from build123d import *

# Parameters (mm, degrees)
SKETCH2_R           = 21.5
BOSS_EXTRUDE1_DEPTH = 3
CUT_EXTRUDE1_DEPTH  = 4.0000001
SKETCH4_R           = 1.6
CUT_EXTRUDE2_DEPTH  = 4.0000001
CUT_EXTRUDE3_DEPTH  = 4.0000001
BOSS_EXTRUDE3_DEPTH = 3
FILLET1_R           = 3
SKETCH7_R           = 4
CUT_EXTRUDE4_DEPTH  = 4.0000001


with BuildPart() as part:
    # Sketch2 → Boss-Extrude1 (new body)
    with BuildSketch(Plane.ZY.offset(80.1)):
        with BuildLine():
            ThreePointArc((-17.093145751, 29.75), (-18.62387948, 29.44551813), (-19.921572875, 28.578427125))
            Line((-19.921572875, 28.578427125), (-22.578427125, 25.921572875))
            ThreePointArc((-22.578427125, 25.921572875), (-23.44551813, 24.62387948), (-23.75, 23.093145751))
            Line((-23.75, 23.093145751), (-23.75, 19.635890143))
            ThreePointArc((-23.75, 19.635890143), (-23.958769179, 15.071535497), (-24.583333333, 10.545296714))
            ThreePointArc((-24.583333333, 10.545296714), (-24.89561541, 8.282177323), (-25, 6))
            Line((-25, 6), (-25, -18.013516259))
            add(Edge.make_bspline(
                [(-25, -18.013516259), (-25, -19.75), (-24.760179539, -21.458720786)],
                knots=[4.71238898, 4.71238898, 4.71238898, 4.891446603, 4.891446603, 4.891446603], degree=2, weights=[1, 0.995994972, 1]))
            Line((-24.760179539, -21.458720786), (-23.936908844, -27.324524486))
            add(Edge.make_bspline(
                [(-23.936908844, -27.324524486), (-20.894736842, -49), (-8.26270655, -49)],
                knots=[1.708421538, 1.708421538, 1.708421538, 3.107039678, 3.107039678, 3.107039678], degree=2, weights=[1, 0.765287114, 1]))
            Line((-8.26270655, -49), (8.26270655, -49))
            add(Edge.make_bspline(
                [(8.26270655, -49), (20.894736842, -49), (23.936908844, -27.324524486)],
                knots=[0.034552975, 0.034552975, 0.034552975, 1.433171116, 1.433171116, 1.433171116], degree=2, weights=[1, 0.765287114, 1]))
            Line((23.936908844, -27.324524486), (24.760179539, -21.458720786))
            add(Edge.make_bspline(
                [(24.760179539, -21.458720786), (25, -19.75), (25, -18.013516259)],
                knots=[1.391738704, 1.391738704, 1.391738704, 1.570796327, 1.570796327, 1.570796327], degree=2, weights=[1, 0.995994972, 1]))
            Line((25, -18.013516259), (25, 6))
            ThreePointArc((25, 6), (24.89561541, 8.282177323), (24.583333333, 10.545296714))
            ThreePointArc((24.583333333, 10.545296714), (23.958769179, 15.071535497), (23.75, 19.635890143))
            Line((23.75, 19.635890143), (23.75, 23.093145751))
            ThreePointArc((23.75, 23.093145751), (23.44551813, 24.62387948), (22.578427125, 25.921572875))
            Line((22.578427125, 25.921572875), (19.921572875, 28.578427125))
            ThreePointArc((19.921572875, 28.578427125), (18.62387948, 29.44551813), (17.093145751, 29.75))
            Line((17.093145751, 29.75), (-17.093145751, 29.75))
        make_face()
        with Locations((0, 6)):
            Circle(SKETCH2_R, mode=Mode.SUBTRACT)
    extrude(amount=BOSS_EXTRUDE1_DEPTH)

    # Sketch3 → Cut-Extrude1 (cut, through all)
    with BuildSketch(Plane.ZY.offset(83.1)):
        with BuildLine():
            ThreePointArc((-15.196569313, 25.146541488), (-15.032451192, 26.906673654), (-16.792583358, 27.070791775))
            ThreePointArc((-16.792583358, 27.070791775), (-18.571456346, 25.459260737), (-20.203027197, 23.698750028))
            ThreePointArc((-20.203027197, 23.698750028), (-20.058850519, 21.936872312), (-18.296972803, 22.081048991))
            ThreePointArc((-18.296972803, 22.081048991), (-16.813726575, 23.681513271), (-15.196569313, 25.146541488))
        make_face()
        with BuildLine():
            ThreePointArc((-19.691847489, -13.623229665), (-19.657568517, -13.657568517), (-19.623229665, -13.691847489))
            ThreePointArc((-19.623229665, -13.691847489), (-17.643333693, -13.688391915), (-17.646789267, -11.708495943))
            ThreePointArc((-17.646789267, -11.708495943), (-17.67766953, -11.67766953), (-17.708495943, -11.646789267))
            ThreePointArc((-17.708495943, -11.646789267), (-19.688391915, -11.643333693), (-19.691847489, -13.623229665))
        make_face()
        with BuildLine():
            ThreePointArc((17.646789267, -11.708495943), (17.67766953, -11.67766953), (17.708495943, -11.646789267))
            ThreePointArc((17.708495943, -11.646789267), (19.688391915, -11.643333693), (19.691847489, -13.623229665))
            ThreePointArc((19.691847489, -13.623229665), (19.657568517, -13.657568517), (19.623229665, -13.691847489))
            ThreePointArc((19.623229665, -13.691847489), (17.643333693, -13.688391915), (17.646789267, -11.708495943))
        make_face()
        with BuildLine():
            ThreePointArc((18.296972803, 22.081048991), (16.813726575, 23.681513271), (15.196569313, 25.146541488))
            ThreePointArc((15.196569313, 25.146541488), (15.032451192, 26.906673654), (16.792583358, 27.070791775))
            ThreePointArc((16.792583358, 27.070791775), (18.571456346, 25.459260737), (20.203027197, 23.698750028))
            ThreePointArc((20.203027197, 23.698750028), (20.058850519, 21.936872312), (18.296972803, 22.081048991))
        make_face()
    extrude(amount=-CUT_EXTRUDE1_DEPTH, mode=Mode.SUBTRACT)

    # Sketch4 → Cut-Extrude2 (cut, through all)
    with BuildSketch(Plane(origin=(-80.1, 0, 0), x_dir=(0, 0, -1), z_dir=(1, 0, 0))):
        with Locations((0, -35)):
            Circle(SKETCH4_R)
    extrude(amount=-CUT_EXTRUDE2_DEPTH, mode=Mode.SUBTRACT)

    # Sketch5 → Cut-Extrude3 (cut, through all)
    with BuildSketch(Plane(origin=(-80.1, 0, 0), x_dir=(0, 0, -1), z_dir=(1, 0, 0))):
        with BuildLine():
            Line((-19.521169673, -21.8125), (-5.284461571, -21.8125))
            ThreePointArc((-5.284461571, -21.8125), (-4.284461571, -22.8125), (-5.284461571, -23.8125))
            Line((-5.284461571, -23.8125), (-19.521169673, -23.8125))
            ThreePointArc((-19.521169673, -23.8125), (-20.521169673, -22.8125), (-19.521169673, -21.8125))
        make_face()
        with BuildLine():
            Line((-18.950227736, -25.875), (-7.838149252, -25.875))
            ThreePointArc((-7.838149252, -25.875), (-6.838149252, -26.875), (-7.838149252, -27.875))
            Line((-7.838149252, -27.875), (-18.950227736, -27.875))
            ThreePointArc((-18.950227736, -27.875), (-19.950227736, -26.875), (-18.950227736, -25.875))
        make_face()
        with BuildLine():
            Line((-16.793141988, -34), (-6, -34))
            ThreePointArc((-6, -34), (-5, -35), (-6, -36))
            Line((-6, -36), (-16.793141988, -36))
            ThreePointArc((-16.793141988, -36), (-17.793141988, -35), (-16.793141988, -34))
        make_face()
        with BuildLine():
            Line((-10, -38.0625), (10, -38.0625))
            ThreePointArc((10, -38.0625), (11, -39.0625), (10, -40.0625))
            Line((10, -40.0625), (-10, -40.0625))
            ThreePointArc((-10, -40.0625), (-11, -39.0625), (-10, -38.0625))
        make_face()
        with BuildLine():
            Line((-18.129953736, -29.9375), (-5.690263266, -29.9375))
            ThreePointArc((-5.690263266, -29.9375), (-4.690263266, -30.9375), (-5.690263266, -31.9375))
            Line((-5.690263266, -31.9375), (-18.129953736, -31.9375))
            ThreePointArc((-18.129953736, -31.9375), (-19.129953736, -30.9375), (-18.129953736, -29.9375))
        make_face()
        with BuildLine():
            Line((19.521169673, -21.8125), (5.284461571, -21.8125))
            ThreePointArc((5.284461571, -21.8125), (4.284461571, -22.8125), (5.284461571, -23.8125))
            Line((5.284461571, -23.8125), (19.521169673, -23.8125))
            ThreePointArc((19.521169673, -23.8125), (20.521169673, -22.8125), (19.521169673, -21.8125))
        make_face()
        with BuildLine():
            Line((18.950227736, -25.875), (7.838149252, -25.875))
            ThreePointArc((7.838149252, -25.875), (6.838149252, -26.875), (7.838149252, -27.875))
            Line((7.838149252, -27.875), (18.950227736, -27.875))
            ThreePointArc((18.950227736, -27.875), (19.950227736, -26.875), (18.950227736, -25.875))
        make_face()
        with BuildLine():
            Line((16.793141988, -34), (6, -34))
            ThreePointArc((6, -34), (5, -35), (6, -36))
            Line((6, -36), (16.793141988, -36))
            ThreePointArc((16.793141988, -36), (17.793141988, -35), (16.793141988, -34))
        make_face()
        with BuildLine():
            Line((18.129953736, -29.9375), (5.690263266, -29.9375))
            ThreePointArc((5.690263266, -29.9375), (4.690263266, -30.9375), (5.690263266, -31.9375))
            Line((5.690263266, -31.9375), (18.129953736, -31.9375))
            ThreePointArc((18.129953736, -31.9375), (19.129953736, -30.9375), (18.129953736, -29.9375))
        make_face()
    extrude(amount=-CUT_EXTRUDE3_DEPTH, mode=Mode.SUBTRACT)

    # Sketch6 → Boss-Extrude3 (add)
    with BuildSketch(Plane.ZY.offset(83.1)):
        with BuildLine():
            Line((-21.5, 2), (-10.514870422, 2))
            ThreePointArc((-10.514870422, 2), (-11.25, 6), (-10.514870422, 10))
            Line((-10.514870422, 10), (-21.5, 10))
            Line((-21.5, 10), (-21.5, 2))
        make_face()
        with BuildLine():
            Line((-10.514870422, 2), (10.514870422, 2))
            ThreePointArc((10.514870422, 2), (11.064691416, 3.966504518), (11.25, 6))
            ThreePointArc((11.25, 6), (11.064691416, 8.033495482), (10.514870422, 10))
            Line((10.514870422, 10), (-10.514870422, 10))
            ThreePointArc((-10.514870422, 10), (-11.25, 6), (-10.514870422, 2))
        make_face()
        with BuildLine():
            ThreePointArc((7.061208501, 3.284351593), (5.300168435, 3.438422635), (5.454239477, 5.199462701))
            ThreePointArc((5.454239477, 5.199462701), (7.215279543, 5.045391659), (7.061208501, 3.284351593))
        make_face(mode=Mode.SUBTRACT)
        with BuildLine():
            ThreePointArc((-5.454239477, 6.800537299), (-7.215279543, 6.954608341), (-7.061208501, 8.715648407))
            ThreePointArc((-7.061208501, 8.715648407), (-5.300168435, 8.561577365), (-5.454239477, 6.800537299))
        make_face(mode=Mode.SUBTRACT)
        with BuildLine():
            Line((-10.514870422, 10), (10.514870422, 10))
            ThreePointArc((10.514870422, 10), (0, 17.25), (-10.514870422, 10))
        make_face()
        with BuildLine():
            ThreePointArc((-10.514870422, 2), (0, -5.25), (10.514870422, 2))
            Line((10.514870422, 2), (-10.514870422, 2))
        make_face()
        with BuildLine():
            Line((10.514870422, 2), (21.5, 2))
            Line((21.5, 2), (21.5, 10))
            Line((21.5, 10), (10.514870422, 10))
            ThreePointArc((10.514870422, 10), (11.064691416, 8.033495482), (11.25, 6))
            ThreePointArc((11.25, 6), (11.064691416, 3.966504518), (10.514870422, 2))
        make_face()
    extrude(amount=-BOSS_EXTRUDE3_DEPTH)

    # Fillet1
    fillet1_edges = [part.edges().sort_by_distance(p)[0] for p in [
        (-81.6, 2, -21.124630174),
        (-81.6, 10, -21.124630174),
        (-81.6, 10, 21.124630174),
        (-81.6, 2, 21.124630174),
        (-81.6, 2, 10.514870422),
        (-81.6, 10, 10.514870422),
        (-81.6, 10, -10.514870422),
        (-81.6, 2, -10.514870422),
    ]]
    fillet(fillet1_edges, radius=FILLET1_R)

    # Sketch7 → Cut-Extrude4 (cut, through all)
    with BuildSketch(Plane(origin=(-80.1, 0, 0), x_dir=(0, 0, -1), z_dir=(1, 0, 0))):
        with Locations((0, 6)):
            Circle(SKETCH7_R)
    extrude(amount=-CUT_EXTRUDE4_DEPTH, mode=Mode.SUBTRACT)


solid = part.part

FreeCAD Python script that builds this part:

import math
import FreeCAD as App
import Part
import Sketcher
from FreeCAD import Vector


def edges_at(feature, points):
    """Names of the edges that pass closest to the given points."""
    edges = feature.Shape.Edges
    near = lambda p: min(range(len(edges)), key=lambda i: edges[i].distToShape(Part.Vertex(*p))[0])
    return sorted({f"Edge{near(p) + 1}" for p in points})

doc = App.newDocument("Part")
body = doc.addObject("PartDesign::Body", "Body")

# Sketch on YZ plane
sketch1 = body.newObject("Sketcher::SketchObject", "Sketch")
sketch1.AttachmentSupport = (doc.getObject("YZ_Plane"), [""])
sketch1.MapMode = "FlatFace"
sketch1.AttachmentOffset = App.Placement(Vector(0, 0, -80.1), App.Rotation())
sketch1.addGeometry([
    Part.ArcOfCircle(Part.Circle(Vector(25.75, -17.093146, 0), Vector(0, 0, 1), 4), math.radians(-45), math.radians(0)),  # 0
    Part.LineSegment(Vector(28.578427, -19.921573, 0), Vector(25.921573, -22.578427, 0)),  # 1
    Part.ArcOfCircle(Part.Circle(Vector(23.093146, -19.75, 0), Vector(0, 0, 1), 4), math.radians(-90), math.radians(-45)),  # 2
    Part.LineSegment(Vector(23.093146, -23.75, 0), Vector(19.63589, -23.75, 0)),  # 3
    Part.ArcOfCircle(Part.Circle(Vector(19.63589, -73.75, 0), Vector(0, 0, 1), 50), math.radians(90), math.radians(100.475314)),  # 4
    Part.ArcOfCircle(Part.Circle(Vector(6, 0, 0), Vector(0, 0, 1), 25), math.radians(-90), math.radians(-79.524686)),  # 5
    Part.LineSegment(Vector(6, -25, 0), Vector(-18.013516, -25, 0)),  # 6
    Part.BSplineCurve([Vector(-18.013516, -25, 0), Vector(-19.75, -25, 0), Vector(-21.458721, -24.76018, 0)], [3, 3], [4.71238898, 4.891446603], False, 2, [1, 0.995994972, 1], False),  # 7
    Part.LineSegment(Vector(-21.458721, -24.76018, 0), Vector(-27.324524, -23.936909, 0)),  # 8
    Part.BSplineCurve([Vector(-27.324524, -23.936909, 0), Vector(-49, -20.894737, 0), Vector(-49, -8.262707, 0)], [3, 3], [1.708421538, 3.107039678], False, 2, [1, 0.765287114, 1], False),  # 9
    Part.LineSegment(Vector(-49, -8.262707, 0), Vector(-49, 8.262707, 0)),  # 10
    Part.BSplineCurve([Vector(-49, 8.262707, 0), Vector(-49, 20.894737, 0), Vector(-27.324524, 23.936909, 0)], [3, 3], [0.034552975, 1.433171116], False, 2, [1, 0.765287114, 1], False),  # 11
    Part.LineSegment(Vector(-27.324524, 23.936909, 0), Vector(-21.458721, 24.76018, 0)),  # 12
    Part.BSplineCurve([Vector(-21.458721, 24.76018, 0), Vector(-19.75, 25, 0), Vector(-18.013516, 25, 0)], [3, 3], [1.391738704, 1.570796327], False, 2, [1, 0.995994972, 1], False),  # 13
    Part.LineSegment(Vector(-18.013516, 25, 0), Vector(6, 25, 0)),  # 14
    Part.ArcOfCircle(Part.Circle(Vector(6, 0, 0), Vector(0, 0, 1), 25), math.radians(79.524686), math.radians(90)),  # 15
    Part.ArcOfCircle(Part.Circle(Vector(19.63589, 73.75, 0), Vector(0, 0, 1), 50), math.radians(-100.475314), math.radians(-90)),  # 16
    Part.LineSegment(Vector(19.63589, 23.75, 0), Vector(23.093146, 23.75, 0)),  # 17
    Part.ArcOfCircle(Part.Circle(Vector(23.093146, 19.75, 0), Vector(0, 0, 1), 4), math.radians(45), math.radians(90)),  # 18
    Part.LineSegment(Vector(25.921573, 22.578427, 0), Vector(28.578427, 19.921573, 0)),  # 19
    Part.ArcOfCircle(Part.Circle(Vector(25.75, 17.093146, 0), Vector(0, 0, 1), 4), math.radians(0), math.radians(45)),  # 20
    Part.LineSegment(Vector(29.75, 17.093146, 0), Vector(29.75, -17.093146, 0)),  # 21
    Part.Circle(Vector(6, 0, 0), Vector(0, 0, 1), 21.5),  # 22
], False)
sketch1.addConstraint([
    Sketcher.Constraint("Block", 7),
    Sketcher.Constraint("Block", 9),
    Sketcher.Constraint("Block", 11),
    Sketcher.Constraint("Block", 13),
    Sketcher.Constraint("Coincident", 0, 1, 1, 1),
    Sketcher.Constraint("Coincident", 1, 2, 2, 2),
    Sketcher.Constraint("Coincident", 2, 1, 3, 1),
    Sketcher.Constraint("Coincident", 3, 2, 4, 1),
    Sketcher.Constraint("Coincident", 4, 2, 5, 2),
    Sketcher.Constraint("Coincident", 5, 1, 6, 1),
    Sketcher.Constraint("Coincident", 6, 2, 7, 1),
    Sketcher.Constraint("Coincident", 7, 2, 8, 1),
    Sketcher.Constraint("Coincident", 8, 2, 9, 1),
    Sketcher.Constraint("Coincident", 9, 2, 10, 1),
    Sketcher.Constraint("Coincident", 10, 2, 11, 1),
    Sketcher.Constraint("Coincident", 11, 2, 12, 1),
    Sketcher.Constraint("Coincident", 12, 2, 13, 1),
    Sketcher.Constraint("Coincident", 13, 2, 14, 1),
    Sketcher.Constraint("Coincident", 14, 2, 15, 2),
    Sketcher.Constraint("Coincident", 15, 1, 16, 1),
    Sketcher.Constraint("Coincident", 16, 2, 17, 1),
    Sketcher.Constraint("Coincident", 17, 2, 18, 2),
    Sketcher.Constraint("Coincident", 18, 1, 19, 1),
    Sketcher.Constraint("Coincident", 19, 2, 20, 2),
    Sketcher.Constraint("Coincident", 20, 1, 21, 1),
    Sketcher.Constraint("Coincident", 21, 2, 0, 2),
    Sketcher.Constraint("Horizontal", 3),
    Sketcher.Constraint("Horizontal", 6),
    Sketcher.Constraint("Horizontal", 14),
    Sketcher.Constraint("Horizontal", 17),
    Sketcher.Constraint("Vertical", 21),
    Sketcher.Constraint("Coincident", 15, 3, 5, 3),
    Sketcher.Constraint("Coincident", 22, 3, 5, 3),
    Sketcher.Constraint("PointOnObject", 5, 3, -1),
    Sketcher.Constraint("Diameter", 22, 43.0),
    Sketcher.Constraint("Radius", 0, 4.0),
    Sketcher.Constraint("Radius", 2, 4.0),
    Sketcher.Constraint("Radius", 4, 50.0),
    Sketcher.Constraint("Radius", 16, 50.0),
    Sketcher.Constraint("Radius", 18, 4.0),
    Sketcher.Constraint("Radius", 20, 4.0),
    Sketcher.Constraint("DistanceX", -1, 1, 5, 3, 6.0),
    Sketcher.Constraint("DistanceX", -1, 1, 5, 1, 6.0),
    Sketcher.Constraint("DistanceX", -1, 1, 14, 2, 6.0),
    Sketcher.Constraint("DistanceY", 2, 3, 16, 3, 93.5),
    Sketcher.Constraint("DistanceX", -1, 1, 0, 3, 25.75),
    Sketcher.Constraint("DistanceY", 2, 3, -1, 1, 19.75),
    Sketcher.Constraint("DistanceY", 21, 2, 21, 1, 34.186292),
    Sketcher.Constraint("Distance", 1, 3.757359),
    Sketcher.Constraint("Distance", 19, 3.757359),
    Sketcher.Constraint("DistanceX", 3, 2, 3, 1, 3.457256),
    Sketcher.Constraint("DistanceX", 17, 1, 17, 2, 3.457256),
    Sketcher.Constraint("DistanceX", -1, 1, 3, 2, 19.63589),
    Sketcher.Constraint("DistanceX", -1, 1, 16, 2, 19.63589),
    Sketcher.Constraint("DistanceY", 0, 3, 20, 3, 34.186292),
    Sketcher.Constraint("DistanceX", 2, 3, 0, 1, 5.485281),
    Sketcher.Constraint("DistanceY", 1, 2, 0, 3, 5.485281),
    Sketcher.Constraint("DistanceX", 2, 1, 0, 1, 5.485281),
    Sketcher.Constraint("DistanceX", 4, 2, 2, 1, 12.547849),
    Sketcher.Constraint("DistanceX", 15, 1, 18, 3, 12.547849),
    Sketcher.Constraint("DistanceX", 15, 1, 17, 2, 12.547849),
    Sketcher.Constraint("DistanceY", 20, 3, 18, 1, 5.485281),
    Sketcher.Constraint("DistanceY", 20, 1, 18, 1, 5.485281),
])
pad1 = body.newObject("PartDesign::Pad", "Pad")
pad1.Profile = sketch1
pad1.Length = 3
pad1.Reversed = True

# Sketch on YZ plane
sketch2 = body.newObject("Sketcher::SketchObject", "Sketch001")
sketch2.AttachmentSupport = (doc.getObject("YZ_Plane"), [""])
sketch2.MapMode = "FlatFace"
sketch2.AttachmentOffset = App.Placement(Vector(0, 0, -83.1), App.Rotation())
sketch2.addGeometry([
    Part.ArcOfCircle(Part.Circle(Vector(26.108667, -15.994576, 0), Vector(0, 0, 1), 1.25), math.radians(-39.673033), math.radians(140.326967)),  # 0
    Part.ArcOfCircle(Part.Circle(Vector(5.904039, 0.763571, 0), Vector(0, 0, 1), 27.5), math.radians(-49.678162), math.radians(-39.673033)),  # 1
    Part.ArcOfCircle(Part.Circle(Vector(22.8899, -19.25, 0), Vector(0, 0, 1), 1.25), math.radians(130.321838), math.radians(310.321838)),  # 2
    Part.ArcOfCircle(Part.Circle(Vector(5.904039, 0.763571, 0), Vector(0, 0, 1), 25), math.radians(-49.678162), math.radians(-39.673033)),  # 3
    Part.ArcOfCircle(Part.Circle(Vector(6.000119, 0.000119, 0), Vector(0, 0, 1), 27.800169), math.radians(-135.099999), math.radians(-134.900001)),  # 4
    Part.ArcOfCircle(Part.Circle(Vector(-12.700172, -18.635009, 0), Vector(0, 0, 1), 1.4), math.radians(44.9), math.radians(224.9)),  # 5
    Part.ArcOfCircle(Part.Circle(Vector(5.999753, -0.000247, 0), Vector(0, 0, 1), 24.99965), math.radians(-135.100001), math.radians(-134.899999)),  # 6
    Part.ArcOfCircle(Part.Circle(Vector(-12.635009, -18.700172, 0), Vector(0, 0, 1), 1.4), math.radians(-134.9), math.radians(45.1)),  # 7
    Part.ArcOfCircle(Part.Circle(Vector(5.999753, 0.000247, 0), Vector(0, 0, 1), 24.99965), math.radians(134.899999), math.radians(135.100001)),  # 8
    Part.ArcOfCircle(Part.Circle(Vector(-12.700172, 18.635009, 0), Vector(0, 0, 1), 1.4), math.radians(135.1), math.radians(315.1)),  # 9
    Part.ArcOfCircle(Part.Circle(Vector(6.000119, -0.000119, 0), Vector(0, 0, 1), 27.800169), math.radians(134.900001), math.radians(135.099999)),  # 10
    Part.ArcOfCircle(Part.Circle(Vector(-12.635009, 18.700172, 0), Vector(0, 0, 1), 1.4), math.radians(-45.1), math.radians(134.9)),  # 11
    Part.ArcOfCircle(Part.Circle(Vector(5.904039, -0.763571, 0), Vector(0, 0, 1), 25), math.radians(39.673033), math.radians(49.678162)),  # 12
    Part.ArcOfCircle(Part.Circle(Vector(22.8899, 19.25, 0), Vector(0, 0, 1), 1.25), math.radians(49.678162), math.radians(229.678162)),  # 13
    Part.ArcOfCircle(Part.Circle(Vector(5.904039, -0.763571, 0), Vector(0, 0, 1), 27.5), math.radians(39.673033), math.radians(49.678162)),  # 14
    Part.ArcOfCircle(Part.Circle(Vector(26.108667, 15.994576, 0), Vector(0, 0, 1), 1.25), math.radians(-140.326967), math.radians(39.673033)),  # 15
], False)
sketch2.addConstraint([
    Sketcher.Constraint("Tangent", 0, 1, 1, 2),
    Sketcher.Constraint("Tangent", 1, 1, 2, 2),
    Sketcher.Constraint("Tangent", 2, 1, 3, 1),
    Sketcher.Constraint("Tangent", 3, 2, 0, 2),
    Sketcher.Constraint("Tangent", 4, 1, 5, 2),
    Sketcher.Constraint("Tangent", 5, 1, 6, 1),
    Sketcher.Constraint("Tangent", 6, 2, 7, 2),
    Sketcher.Constraint("Tangent", 7, 1, 4, 2),
    Sketcher.Constraint("Tangent", 8, 2, 9, 2),
    Sketcher.Constraint("Tangent", 9, 1, 10, 2),
    Sketcher.Constraint("Tangent", 10, 1, 11, 2),
    Sketcher.Constraint("Tangent", 11, 1, 8, 1),
    Sketcher.Constraint("Tangent", 12, 2, 13, 2),
    Sketcher.Constraint("Tangent", 13, 1, 14, 2),
    Sketcher.Constraint("Tangent", 14, 1, 15, 2),
    Sketcher.Constraint("Tangent", 15, 1, 12, 1),
    Sketcher.Constraint("Coincident", 3, 3, 1, 3),
    Sketcher.Constraint("Coincident", 14, 3, 12, 3),
    Sketcher.Constraint("Equal", 6, 8),
    Sketcher.Constraint("Equal", 7, 9),
    Sketcher.Constraint("Equal", 4, 10),
    Sketcher.Constraint("Equal", 3, 12),
    Sketcher.Constraint("Equal", 2, 13),
    Sketcher.Constraint("Symmetric", 6, 3, 8, 3, -1),
    Sketcher.Constraint("Symmetric", 5, 3, 9, 3, -1),
    Sketcher.Constraint("Symmetric", 7, 3, 11, 3, -1),
    Sketcher.Constraint("Symmetric", 1, 3, 12, 3, -1),
    Sketcher.Constraint("Vertical", 2, 3, 13, 3),
    Sketcher.Constraint("Vertical", 0, 3, 15, 3),
    Sketcher.Constraint("Radius", 3, 25.0),
    Sketcher.Constraint("Radius", 1, 27.5),
    Sketcher.Constraint("Radius", 5, 1.4),
    Sketcher.Constraint("DistanceY", 2, 3, -1, 1, 19.25),
    Sketcher.Constraint("Radius", 4, 27.800169),
    Sketcher.Constraint("Radius", 6, 24.99965),
    Sketcher.Constraint("DistanceX", -1, 1, 2, 3, 22.8899),
    Sketcher.Constraint("DistanceY", 3, 3, 11, 3, 17.936601),
    Sketcher.Constraint("DistanceY", 2, 1, 12, 3, 17.533402),
    Sketcher.Constraint("DistanceX", 4, 1, 6, 3, 19.6916),
    Sketcher.Constraint("DistanceX", -1, 1, 4, 3, 6.000119),
    Sketcher.Constraint("DistanceY", -1, 1, 4, 3, 0.000119),
    Sketcher.Constraint("DistanceX", -1, 1, 0, 1, 27.070792),
])
pocket1 = body.newObject("PartDesign::Pocket", "Pocket")
pocket1.Profile = sketch2
pocket1.Type = "ThroughAll"
pocket1.Reversed = True

# Sketch on YZ plane
sketch3 = body.newObject("Sketcher::SketchObject", "Sketch002")
sketch3.AttachmentSupport = (doc.getObject("YZ_Plane"), [""])
sketch3.MapMode = "FlatFace"
sketch3.AttachmentOffset = App.Placement(Vector(0, 0, -80.1), App.Rotation())
sketch3.addGeometry(Part.Circle(Vector(-35, 0, 0), Vector(0, 0, 1), 1.6), False)
sketch3.addConstraint([
    Sketcher.Constraint("PointOnObject", 0, 3, -1),
    Sketcher.Constraint("Diameter", 0, 3.2),
    Sketcher.Constraint("DistanceX", 0, 3, -1, 1, 35.0),
])
pocket2 = body.newObject("PartDesign::Pocket", "Pocket001")
pocket2.Profile = sketch3
pocket2.Type = "ThroughAll"

# Sketch on YZ plane
sketch4 = body.newObject("Sketcher::SketchObject", "Sketch003")
sketch4.AttachmentSupport = (doc.getObject("YZ_Plane"), [""])
sketch4.MapMode = "FlatFace"
sketch4.AttachmentOffset = App.Placement(Vector(0, 0, -80.1), App.Rotation())
sketch4.addGeometry([
    Part.LineSegment(Vector(-21.8, 5.3, 0), Vector(-21.8, 19.5, 0)),  # 0
    Part.ArcOfCircle(Part.Circle(Vector(-22.8, 19.5, 0), Vector(0, 0, 1), 1), math.radians(0), math.radians(180)),  # 1
    Part.LineSegment(Vector(-23.8, 19.5, 0), Vector(-23.8, 5.3, 0)),  # 2
    Part.ArcOfCircle(Part.Circle(Vector(-22.8, 5.3, 0), Vector(0, 0, 1), 1), math.radians(180), math.radians(360)),  # 3
    Part.LineSegment(Vector(-25.9, 7.8, 0), Vector(-25.9, 19, 0)),  # 4
    Part.ArcOfCircle(Part.Circle(Vector(-26.9, 19, 0), Vector(0, 0, 1), 1), math.radians(0), math.radians(180)),  # 5
    Part.LineSegment(Vector(-27.9, 19, 0), Vector(-27.9, 7.8, 0)),  # 6
    Part.ArcOfCircle(Part.Circle(Vector(-26.9, 7.8, 0), Vector(0, 0, 1), 1), math.radians(180), math.radians(360)),  # 7
    Part.LineSegment(Vector(-34, 6, 0), Vector(-34, 16.8, 0)),  # 8
    Part.ArcOfCircle(Part.Circle(Vector(-35, 16.8, 0), Vector(0, 0, 1), 1), math.radians(0), math.radians(180)),  # 9
    Part.LineSegment(Vector(-36, 16.8, 0), Vector(-36, 6, 0)),  # 10
    Part.ArcOfCircle(Part.Circle(Vector(-35, 6, 0), Vector(0, 0, 1), 1), math.radians(180), math.radians(360)),  # 11
    Part.LineSegment(Vector(-38.1, -10, 0), Vector(-38.1, 10, 0)),  # 12
    Part.ArcOfCircle(Part.Circle(Vector(-39.1, 10, 0), Vector(0, 0, 1), 1), math.radians(0), math.radians(180)),  # 13
    Part.LineSegment(Vector(-40.1, 10, 0), Vector(-40.1, -10, 0)),  # 14
    Part.ArcOfCircle(Part.Circle(Vector(-39.1, -10, 0), Vector(0, 0, 1), 1), math.radians(180), math.radians(360)),  # 15
    Part.LineSegment(Vector(-29.9, 5.7, 0), Vector(-29.9, 18.1, 0)),  # 16
    Part.ArcOfCircle(Part.Circle(Vector(-30.9, 18.1, 0), Vector(0, 0, 1), 1), math.radians(0), math.radians(180)),  # 17
    Part.LineSegment(Vector(-31.9, 18.1, 0), Vector(-31.9, 5.7, 0)),  # 18
    Part.ArcOfCircle(Part.Circle(Vector(-30.9, 5.7, 0), Vector(0, 0, 1), 1), math.radians(180), math.radians(360)),  # 19
    Part.LineSegment(Vector(-21.8, -19.5, 0), Vector(-21.8, -5.3, 0)),  # 20
    Part.ArcOfCircle(Part.Circle(Vector(-22.8, -5.3, 0), Vector(0, 0, 1), 1), math.radians(0), math.radians(180)),  # 21
    Part.LineSegment(Vector(-23.8, -5.3, 0), Vector(-23.8, -19.5, 0)),  # 22
    Part.ArcOfCircle(Part.Circle(Vector(-22.8, -19.5, 0), Vector(0, 0, 1), 1), math.radians(180), math.radians(360)),  # 23
    Part.LineSegment(Vector(-25.9, -19, 0), Vector(-25.9, -7.8, 0)),  # 24
    Part.ArcOfCircle(Part.Circle(Vector(-26.9, -7.8, 0), Vector(0, 0, 1), 1), math.radians(0), math.radians(180)),  # 25
    Part.LineSegment(Vector(-27.9, -7.8, 0), Vector(-27.9, -19, 0)),  # 26
    Part.ArcOfCircle(Part.Circle(Vector(-26.9, -19, 0), Vector(0, 0, 1), 1), math.radians(180), math.radians(360)),  # 27
    Part.LineSegment(Vector(-34, -16.8, 0), Vector(-34, -6, 0)),  # 28
    Part.ArcOfCircle(Part.Circle(Vector(-35, -6, 0), Vector(0, 0, 1), 1), math.radians(0), math.radians(180)),  # 29
    Part.LineSegment(Vector(-36, -6, 0), Vector(-36, -16.8, 0)),  # 30
    Part.ArcOfCircle(Part.Circle(Vector(-35, -16.8, 0), Vector(0, 0, 1), 1), math.radians(180), math.radians(360)),  # 31
    Part.LineSegment(Vector(-29.9, -18.1, 0), Vector(-29.9, -5.7, 0)),  # 32
    Part.ArcOfCircle(Part.Circle(Vector(-30.9, -5.7, 0), Vector(0, 0, 1), 1), math.radians(0), math.radians(180)),  # 33
    Part.LineSegment(Vector(-31.9, -5.7, 0), Vector(-31.9, -18.1, 0)),  # 34
    Part.ArcOfCircle(Part.Circle(Vector(-30.9, -18.1, 0), Vector(0, 0, 1), 1), math.radians(180), math.radians(360)),  # 35
], False)
sketch4.addConstraint([
    Sketcher.Constraint("Tangent", 0, 2, 1, 1),
    Sketcher.Constraint("Tangent", 1, 2, 2, 1),
    Sketcher.Constraint("Tangent", 2, 2, 3, 1),
    Sketcher.Constraint("Tangent", 3, 2, 0, 1),
    Sketcher.Constraint("Tangent", 4, 2, 5, 1),
    Sketcher.Constraint("Tangent", 5, 2, 6, 1),
    Sketcher.Constraint("Tangent", 6, 2, 7, 1),
    Sketcher.Constraint("Tangent", 7, 2, 4, 1),
    Sketcher.Constraint("Tangent", 8, 2, 9, 1),
    Sketcher.Constraint("Tangent", 9, 2, 10, 1),
    Sketcher.Constraint("Tangent", 10, 2, 11, 1),
    Sketcher.Constraint("Tangent", 11, 2, 8, 1),
    Sketcher.Constraint("Tangent", 12, 2, 13, 1),
    Sketcher.Constraint("Tangent", 13, 2, 14, 1),
    Sketcher.Constraint("Tangent", 14, 2, 15, 1),
    Sketcher.Constraint("Tangent", 15, 2, 12, 1),
    Sketcher.Constraint("Tangent", 16, 2, 17, 1),
    Sketcher.Constraint("Tangent", 17, 2, 18, 1),
    Sketcher.Constraint("Tangent", 18, 2, 19, 1),
    Sketcher.Constraint("Tangent", 19, 2, 16, 1),
    Sketcher.Constraint("Tangent", 20, 2, 21, 1),
    Sketcher.Constraint("Tangent", 21, 2, 22, 1),
    Sketcher.Constraint("Tangent", 22, 2, 23, 1),
    Sketcher.Constraint("Tangent", 23, 2, 20, 1),
    Sketcher.Constraint("Tangent", 24, 2, 25, 1),
    Sketcher.Constraint("Tangent", 25, 2, 26, 1),
    Sketcher.Constraint("Tangent", 26, 2, 27, 1),
    Sketcher.Constraint("Tangent", 27, 2, 24, 1),
    Sketcher.Constraint("Tangent", 28, 2, 29, 1),
    Sketcher.Constraint("Tangent", 29, 2, 30, 1),
    Sketcher.Constraint("Tangent", 30, 2, 31, 1),
    Sketcher.Constraint("Tangent", 31, 2, 28, 1),
    Sketcher.Constraint("Tangent", 32, 2, 33, 1),
    Sketcher.Constraint("Tangent", 33, 2, 34, 1),
    Sketcher.Constraint("Tangent", 34, 2, 35, 1),
    Sketcher.Constraint("Tangent", 35, 2, 32, 1),
    Sketcher.Constraint("Vertical", 0),
    Sketcher.Constraint("Vertical", 2),
    Sketcher.Constraint("Vertical", 4),
    Sketcher.Constraint("Vertical", 6),
    Sketcher.Constraint("Vertical", 8),
    Sketcher.Constraint("Vertical", 10),
    Sketcher.Constraint("Vertical", 12),
    Sketcher.Constraint("Vertical", 14),
    Sketcher.Constraint("Vertical", 16),
    Sketcher.Constraint("Vertical", 18),
    Sketcher.Constraint("Vertical", 20),
    Sketcher.Constraint("Vertical", 22),
    Sketcher.Constraint("Vertical", 24),
    Sketcher.Constraint("Vertical", 26),
    Sketcher.Constraint("Vertical", 28),
    Sketcher.Constraint("Vertical", 30),
    Sketcher.Constraint("Vertical", 32),
    Sketcher.Constraint("Vertical", 34),
    Sketcher.Constraint("Equal", 3, 5),
    Sketcher.Constraint("Equal", 7, 9),
    Sketcher.Constraint("Equal", 11, 13),
    Sketcher.Constraint("Equal", 15, 17),
    Sketcher.Constraint("Equal", 19, 21),
    Sketcher.Constraint("Equal", 23, 25),
    Sketcher.Constraint("Equal", 27, 29),
    Sketcher.Constraint("Equal", 31, 33),
    Sketcher.Constraint("Symmetric", 3, 3, 21, 3, -1),
    Sketcher.Constraint("Symmetric", 7, 3, 25, 3, -1),
    Sketcher.Constraint("Symmetric", 11, 3, 29, 3, -1),
    Sketcher.Constraint("Symmetric", 19, 3, 33, 3, -1),
    Sketcher.Constraint("Equal", 2, 20),
    Sketcher.Constraint("Equal", 6, 24),
    Sketcher.Constraint("Equal", 10, 28),
    Sketcher.Constraint("Equal", 18, 32),
    Sketcher.Constraint("Radius", 1, 1.0),
    Sketcher.Constraint("DistanceY", 12, 1, 12, 2, 20.0),
    Sketcher.Constraint("DistanceX", 9, 3, -1, 1, 35.0),
    Sketcher.Constraint("DistanceY", -1, 1, 11, 3, 6.0),
    Sketcher.Constraint("DistanceY", -1, 1, 13, 3, 10.0),
    Sketcher.Constraint("DistanceX", 13, 3, 3, 3, 16.25),
    Sketcher.Constraint("DistanceX", 5, 3, -1, 1, 26.875),
    Sketcher.Constraint("DistanceX", 17, 3, 1, 3, 8.125),
    Sketcher.Constraint("DistanceY", 0, 1, 0, 2, 14.236708),
    Sketcher.Constraint("DistanceY", 4, 1, 4, 2, 11.112078),
    Sketcher.Constraint("DistanceY", 8, 1, 8, 2, 10.793142),
    Sketcher.Constraint("DistanceY", 16, 1, 16, 2, 12.43969),
    Sketcher.Constraint("DistanceX", 1, 3, -1, 1, 22.8125),
    Sketcher.Constraint("DistanceY", 3, 3, 19, 3, 0.405802),
    Sketcher.Constraint("DistanceY", -1, 1, 1, 3, 19.52117),
    Sketcher.Constraint("DistanceY", -1, 1, 7, 3, 7.838149),
])
pocket3 = body.newObject("PartDesign::Pocket", "Pocket002")
pocket3.Profile = sketch4
pocket3.Type = "ThroughAll"

# Sketch on YZ plane
sketch5 = body.newObject("Sketcher::SketchObject", "Sketch004")
sketch5.AttachmentSupport = (doc.getObject("YZ_Plane"), [""])
sketch5.MapMode = "FlatFace"
sketch5.AttachmentOffset = App.Placement(Vector(0, 0, -83.1), App.Rotation())
sketch5.addGeometry([
    Part.LineSegment(Vector(2, -21.5, 0), Vector(2, -10.5, 0)),  # 0
    Part.ArcOfCircle(Part.Circle(Vector(6, 0, 0), Vector(0, 0, 1), 11.2), math.radians(111), math.radians(249)),  # 1
    Part.LineSegment(Vector(2, 10.5, 0), Vector(2, 21.5, 0)),  # 2
    Part.LineSegment(Vector(2, 21.5, 0), Vector(10, 21.5, 0)),  # 3
    Part.LineSegment(Vector(10, 21.5, 0), Vector(10, 10.5, 0)),  # 4
    Part.ArcOfCircle(Part.Circle(Vector(6, 0, 0), Vector(0, 0, 1), 11.2), math.radians(-69), math.radians(69)),  # 5
    Part.LineSegment(Vector(10, -10.5, 0), Vector(10, -21.5, 0)),  # 6
    Part.LineSegment(Vector(10, -21.5, 0), Vector(2, -21.5, 0)),  # 7
    Part.Circle(Vector(4.2, 6.3, 0), Vector(0, 0, 1), 1.2),  # 8
    Part.Circle(Vector(7.8, -6.3, 0), Vector(0, 0, 1), 1.2),  # 9
], False)
sketch5.addConstraint([
    Sketcher.Constraint("Coincident", 0, 2, 1, 2),
    Sketcher.Constraint("Coincident", 1, 1, 2, 1),
    Sketcher.Constraint("Coincident", 2, 2, 3, 1),
    Sketcher.Constraint("Coincident", 3, 2, 4, 1),
    Sketcher.Constraint("Coincident", 4, 2, 5, 2),
    Sketcher.Constraint("Coincident", 5, 1, 6, 1),
    Sketcher.Constraint("Coincident", 6, 2, 7, 1),
    Sketcher.Constraint("Coincident", 7, 2, 0, 1),
    Sketcher.Constraint("Vertical", 0),
    Sketcher.Constraint("Vertical", 2),
    Sketcher.Constraint("Horizontal", 3),
    Sketcher.Constraint("Vertical", 4),
    Sketcher.Constraint("Vertical", 6),
    Sketcher.Constraint("Horizontal", 7),
    Sketcher.Constraint("Coincident", 5, 3, 1, 3),
    Sketcher.Constraint("Equal", 1, 5),
    Sketcher.Constraint("Equal", 8, 9),
    Sketcher.Constraint("Symmetric", 0, 2, 1, 1, -1),
    Sketcher.Constraint("Symmetric", 3, 2, 6, 2, -1),
    Sketcher.Constraint("Horizontal", 1, 1, 4, 2),
    Sketcher.Constraint("Diameter", 8, 2.5),
    Sketcher.Constraint("DistanceX", 3, 1, 3, 2, 8.0),
    Sketcher.Constraint("Radius", 1, 11.25),
    Sketcher.Constraint("DistanceX", -1, 1, 1, 3, 6.0),
    Sketcher.Constraint("DistanceY", -1, 1, 2, 2, 21.5),
    Sketcher.Constraint("DistanceX", -1, 1, 8, 3, 4.241907),
    Sketcher.Constraint("DistanceY", -1, 1, 8, 3, 6.257724),
    Sketcher.Constraint("DistanceX", -1, 1, 9, 3, 7.758093),
    Sketcher.Constraint("DistanceY", 9, 3, -1, 1, 6.257724),
])
pad2 = body.newObject("PartDesign::Pad", "Pad001")
pad2.Profile = sketch5
pad2.Length = 3
doc.recompute()

fillet = body.newObject("PartDesign::Fillet", "Fillet")
fillet.Base = (pad2, edges_at(pad2, [
    (-81.6, 2, -21.125),
    (-81.6, 10, -21.125),
    (-81.6, 10, 21.125),
    (-81.6, 2, 21.125),
    (-81.6, 2, 10.515),
    (-81.6, 10, 10.515),
    (-81.6, 10, -10.515),
    (-81.6, 2, -10.515),
]))
fillet.Radius = 3

# Sketch on YZ plane
sketch6 = body.newObject("Sketcher::SketchObject", "Sketch005")
sketch6.AttachmentSupport = (doc.getObject("YZ_Plane"), [""])
sketch6.MapMode = "FlatFace"
sketch6.AttachmentOffset = App.Placement(Vector(0, 0, -80.1), App.Rotation())
sketch6.addGeometry(Part.Circle(Vector(6, 0, 0), Vector(0, 0, 1), 4), False)
sketch6.addConstraint([
    Sketcher.Constraint("PointOnObject", 0, 3, -1),
    Sketcher.Constraint("Diameter", 0, 8.0),
    Sketcher.Constraint("DistanceX", -1, 1, 0, 3, 6.0),
])
pocket4 = body.newObject("PartDesign::Pocket", "Pocket003")
pocket4.Profile = sketch6
pocket4.Type = "ThroughAll"

doc.recompute()
